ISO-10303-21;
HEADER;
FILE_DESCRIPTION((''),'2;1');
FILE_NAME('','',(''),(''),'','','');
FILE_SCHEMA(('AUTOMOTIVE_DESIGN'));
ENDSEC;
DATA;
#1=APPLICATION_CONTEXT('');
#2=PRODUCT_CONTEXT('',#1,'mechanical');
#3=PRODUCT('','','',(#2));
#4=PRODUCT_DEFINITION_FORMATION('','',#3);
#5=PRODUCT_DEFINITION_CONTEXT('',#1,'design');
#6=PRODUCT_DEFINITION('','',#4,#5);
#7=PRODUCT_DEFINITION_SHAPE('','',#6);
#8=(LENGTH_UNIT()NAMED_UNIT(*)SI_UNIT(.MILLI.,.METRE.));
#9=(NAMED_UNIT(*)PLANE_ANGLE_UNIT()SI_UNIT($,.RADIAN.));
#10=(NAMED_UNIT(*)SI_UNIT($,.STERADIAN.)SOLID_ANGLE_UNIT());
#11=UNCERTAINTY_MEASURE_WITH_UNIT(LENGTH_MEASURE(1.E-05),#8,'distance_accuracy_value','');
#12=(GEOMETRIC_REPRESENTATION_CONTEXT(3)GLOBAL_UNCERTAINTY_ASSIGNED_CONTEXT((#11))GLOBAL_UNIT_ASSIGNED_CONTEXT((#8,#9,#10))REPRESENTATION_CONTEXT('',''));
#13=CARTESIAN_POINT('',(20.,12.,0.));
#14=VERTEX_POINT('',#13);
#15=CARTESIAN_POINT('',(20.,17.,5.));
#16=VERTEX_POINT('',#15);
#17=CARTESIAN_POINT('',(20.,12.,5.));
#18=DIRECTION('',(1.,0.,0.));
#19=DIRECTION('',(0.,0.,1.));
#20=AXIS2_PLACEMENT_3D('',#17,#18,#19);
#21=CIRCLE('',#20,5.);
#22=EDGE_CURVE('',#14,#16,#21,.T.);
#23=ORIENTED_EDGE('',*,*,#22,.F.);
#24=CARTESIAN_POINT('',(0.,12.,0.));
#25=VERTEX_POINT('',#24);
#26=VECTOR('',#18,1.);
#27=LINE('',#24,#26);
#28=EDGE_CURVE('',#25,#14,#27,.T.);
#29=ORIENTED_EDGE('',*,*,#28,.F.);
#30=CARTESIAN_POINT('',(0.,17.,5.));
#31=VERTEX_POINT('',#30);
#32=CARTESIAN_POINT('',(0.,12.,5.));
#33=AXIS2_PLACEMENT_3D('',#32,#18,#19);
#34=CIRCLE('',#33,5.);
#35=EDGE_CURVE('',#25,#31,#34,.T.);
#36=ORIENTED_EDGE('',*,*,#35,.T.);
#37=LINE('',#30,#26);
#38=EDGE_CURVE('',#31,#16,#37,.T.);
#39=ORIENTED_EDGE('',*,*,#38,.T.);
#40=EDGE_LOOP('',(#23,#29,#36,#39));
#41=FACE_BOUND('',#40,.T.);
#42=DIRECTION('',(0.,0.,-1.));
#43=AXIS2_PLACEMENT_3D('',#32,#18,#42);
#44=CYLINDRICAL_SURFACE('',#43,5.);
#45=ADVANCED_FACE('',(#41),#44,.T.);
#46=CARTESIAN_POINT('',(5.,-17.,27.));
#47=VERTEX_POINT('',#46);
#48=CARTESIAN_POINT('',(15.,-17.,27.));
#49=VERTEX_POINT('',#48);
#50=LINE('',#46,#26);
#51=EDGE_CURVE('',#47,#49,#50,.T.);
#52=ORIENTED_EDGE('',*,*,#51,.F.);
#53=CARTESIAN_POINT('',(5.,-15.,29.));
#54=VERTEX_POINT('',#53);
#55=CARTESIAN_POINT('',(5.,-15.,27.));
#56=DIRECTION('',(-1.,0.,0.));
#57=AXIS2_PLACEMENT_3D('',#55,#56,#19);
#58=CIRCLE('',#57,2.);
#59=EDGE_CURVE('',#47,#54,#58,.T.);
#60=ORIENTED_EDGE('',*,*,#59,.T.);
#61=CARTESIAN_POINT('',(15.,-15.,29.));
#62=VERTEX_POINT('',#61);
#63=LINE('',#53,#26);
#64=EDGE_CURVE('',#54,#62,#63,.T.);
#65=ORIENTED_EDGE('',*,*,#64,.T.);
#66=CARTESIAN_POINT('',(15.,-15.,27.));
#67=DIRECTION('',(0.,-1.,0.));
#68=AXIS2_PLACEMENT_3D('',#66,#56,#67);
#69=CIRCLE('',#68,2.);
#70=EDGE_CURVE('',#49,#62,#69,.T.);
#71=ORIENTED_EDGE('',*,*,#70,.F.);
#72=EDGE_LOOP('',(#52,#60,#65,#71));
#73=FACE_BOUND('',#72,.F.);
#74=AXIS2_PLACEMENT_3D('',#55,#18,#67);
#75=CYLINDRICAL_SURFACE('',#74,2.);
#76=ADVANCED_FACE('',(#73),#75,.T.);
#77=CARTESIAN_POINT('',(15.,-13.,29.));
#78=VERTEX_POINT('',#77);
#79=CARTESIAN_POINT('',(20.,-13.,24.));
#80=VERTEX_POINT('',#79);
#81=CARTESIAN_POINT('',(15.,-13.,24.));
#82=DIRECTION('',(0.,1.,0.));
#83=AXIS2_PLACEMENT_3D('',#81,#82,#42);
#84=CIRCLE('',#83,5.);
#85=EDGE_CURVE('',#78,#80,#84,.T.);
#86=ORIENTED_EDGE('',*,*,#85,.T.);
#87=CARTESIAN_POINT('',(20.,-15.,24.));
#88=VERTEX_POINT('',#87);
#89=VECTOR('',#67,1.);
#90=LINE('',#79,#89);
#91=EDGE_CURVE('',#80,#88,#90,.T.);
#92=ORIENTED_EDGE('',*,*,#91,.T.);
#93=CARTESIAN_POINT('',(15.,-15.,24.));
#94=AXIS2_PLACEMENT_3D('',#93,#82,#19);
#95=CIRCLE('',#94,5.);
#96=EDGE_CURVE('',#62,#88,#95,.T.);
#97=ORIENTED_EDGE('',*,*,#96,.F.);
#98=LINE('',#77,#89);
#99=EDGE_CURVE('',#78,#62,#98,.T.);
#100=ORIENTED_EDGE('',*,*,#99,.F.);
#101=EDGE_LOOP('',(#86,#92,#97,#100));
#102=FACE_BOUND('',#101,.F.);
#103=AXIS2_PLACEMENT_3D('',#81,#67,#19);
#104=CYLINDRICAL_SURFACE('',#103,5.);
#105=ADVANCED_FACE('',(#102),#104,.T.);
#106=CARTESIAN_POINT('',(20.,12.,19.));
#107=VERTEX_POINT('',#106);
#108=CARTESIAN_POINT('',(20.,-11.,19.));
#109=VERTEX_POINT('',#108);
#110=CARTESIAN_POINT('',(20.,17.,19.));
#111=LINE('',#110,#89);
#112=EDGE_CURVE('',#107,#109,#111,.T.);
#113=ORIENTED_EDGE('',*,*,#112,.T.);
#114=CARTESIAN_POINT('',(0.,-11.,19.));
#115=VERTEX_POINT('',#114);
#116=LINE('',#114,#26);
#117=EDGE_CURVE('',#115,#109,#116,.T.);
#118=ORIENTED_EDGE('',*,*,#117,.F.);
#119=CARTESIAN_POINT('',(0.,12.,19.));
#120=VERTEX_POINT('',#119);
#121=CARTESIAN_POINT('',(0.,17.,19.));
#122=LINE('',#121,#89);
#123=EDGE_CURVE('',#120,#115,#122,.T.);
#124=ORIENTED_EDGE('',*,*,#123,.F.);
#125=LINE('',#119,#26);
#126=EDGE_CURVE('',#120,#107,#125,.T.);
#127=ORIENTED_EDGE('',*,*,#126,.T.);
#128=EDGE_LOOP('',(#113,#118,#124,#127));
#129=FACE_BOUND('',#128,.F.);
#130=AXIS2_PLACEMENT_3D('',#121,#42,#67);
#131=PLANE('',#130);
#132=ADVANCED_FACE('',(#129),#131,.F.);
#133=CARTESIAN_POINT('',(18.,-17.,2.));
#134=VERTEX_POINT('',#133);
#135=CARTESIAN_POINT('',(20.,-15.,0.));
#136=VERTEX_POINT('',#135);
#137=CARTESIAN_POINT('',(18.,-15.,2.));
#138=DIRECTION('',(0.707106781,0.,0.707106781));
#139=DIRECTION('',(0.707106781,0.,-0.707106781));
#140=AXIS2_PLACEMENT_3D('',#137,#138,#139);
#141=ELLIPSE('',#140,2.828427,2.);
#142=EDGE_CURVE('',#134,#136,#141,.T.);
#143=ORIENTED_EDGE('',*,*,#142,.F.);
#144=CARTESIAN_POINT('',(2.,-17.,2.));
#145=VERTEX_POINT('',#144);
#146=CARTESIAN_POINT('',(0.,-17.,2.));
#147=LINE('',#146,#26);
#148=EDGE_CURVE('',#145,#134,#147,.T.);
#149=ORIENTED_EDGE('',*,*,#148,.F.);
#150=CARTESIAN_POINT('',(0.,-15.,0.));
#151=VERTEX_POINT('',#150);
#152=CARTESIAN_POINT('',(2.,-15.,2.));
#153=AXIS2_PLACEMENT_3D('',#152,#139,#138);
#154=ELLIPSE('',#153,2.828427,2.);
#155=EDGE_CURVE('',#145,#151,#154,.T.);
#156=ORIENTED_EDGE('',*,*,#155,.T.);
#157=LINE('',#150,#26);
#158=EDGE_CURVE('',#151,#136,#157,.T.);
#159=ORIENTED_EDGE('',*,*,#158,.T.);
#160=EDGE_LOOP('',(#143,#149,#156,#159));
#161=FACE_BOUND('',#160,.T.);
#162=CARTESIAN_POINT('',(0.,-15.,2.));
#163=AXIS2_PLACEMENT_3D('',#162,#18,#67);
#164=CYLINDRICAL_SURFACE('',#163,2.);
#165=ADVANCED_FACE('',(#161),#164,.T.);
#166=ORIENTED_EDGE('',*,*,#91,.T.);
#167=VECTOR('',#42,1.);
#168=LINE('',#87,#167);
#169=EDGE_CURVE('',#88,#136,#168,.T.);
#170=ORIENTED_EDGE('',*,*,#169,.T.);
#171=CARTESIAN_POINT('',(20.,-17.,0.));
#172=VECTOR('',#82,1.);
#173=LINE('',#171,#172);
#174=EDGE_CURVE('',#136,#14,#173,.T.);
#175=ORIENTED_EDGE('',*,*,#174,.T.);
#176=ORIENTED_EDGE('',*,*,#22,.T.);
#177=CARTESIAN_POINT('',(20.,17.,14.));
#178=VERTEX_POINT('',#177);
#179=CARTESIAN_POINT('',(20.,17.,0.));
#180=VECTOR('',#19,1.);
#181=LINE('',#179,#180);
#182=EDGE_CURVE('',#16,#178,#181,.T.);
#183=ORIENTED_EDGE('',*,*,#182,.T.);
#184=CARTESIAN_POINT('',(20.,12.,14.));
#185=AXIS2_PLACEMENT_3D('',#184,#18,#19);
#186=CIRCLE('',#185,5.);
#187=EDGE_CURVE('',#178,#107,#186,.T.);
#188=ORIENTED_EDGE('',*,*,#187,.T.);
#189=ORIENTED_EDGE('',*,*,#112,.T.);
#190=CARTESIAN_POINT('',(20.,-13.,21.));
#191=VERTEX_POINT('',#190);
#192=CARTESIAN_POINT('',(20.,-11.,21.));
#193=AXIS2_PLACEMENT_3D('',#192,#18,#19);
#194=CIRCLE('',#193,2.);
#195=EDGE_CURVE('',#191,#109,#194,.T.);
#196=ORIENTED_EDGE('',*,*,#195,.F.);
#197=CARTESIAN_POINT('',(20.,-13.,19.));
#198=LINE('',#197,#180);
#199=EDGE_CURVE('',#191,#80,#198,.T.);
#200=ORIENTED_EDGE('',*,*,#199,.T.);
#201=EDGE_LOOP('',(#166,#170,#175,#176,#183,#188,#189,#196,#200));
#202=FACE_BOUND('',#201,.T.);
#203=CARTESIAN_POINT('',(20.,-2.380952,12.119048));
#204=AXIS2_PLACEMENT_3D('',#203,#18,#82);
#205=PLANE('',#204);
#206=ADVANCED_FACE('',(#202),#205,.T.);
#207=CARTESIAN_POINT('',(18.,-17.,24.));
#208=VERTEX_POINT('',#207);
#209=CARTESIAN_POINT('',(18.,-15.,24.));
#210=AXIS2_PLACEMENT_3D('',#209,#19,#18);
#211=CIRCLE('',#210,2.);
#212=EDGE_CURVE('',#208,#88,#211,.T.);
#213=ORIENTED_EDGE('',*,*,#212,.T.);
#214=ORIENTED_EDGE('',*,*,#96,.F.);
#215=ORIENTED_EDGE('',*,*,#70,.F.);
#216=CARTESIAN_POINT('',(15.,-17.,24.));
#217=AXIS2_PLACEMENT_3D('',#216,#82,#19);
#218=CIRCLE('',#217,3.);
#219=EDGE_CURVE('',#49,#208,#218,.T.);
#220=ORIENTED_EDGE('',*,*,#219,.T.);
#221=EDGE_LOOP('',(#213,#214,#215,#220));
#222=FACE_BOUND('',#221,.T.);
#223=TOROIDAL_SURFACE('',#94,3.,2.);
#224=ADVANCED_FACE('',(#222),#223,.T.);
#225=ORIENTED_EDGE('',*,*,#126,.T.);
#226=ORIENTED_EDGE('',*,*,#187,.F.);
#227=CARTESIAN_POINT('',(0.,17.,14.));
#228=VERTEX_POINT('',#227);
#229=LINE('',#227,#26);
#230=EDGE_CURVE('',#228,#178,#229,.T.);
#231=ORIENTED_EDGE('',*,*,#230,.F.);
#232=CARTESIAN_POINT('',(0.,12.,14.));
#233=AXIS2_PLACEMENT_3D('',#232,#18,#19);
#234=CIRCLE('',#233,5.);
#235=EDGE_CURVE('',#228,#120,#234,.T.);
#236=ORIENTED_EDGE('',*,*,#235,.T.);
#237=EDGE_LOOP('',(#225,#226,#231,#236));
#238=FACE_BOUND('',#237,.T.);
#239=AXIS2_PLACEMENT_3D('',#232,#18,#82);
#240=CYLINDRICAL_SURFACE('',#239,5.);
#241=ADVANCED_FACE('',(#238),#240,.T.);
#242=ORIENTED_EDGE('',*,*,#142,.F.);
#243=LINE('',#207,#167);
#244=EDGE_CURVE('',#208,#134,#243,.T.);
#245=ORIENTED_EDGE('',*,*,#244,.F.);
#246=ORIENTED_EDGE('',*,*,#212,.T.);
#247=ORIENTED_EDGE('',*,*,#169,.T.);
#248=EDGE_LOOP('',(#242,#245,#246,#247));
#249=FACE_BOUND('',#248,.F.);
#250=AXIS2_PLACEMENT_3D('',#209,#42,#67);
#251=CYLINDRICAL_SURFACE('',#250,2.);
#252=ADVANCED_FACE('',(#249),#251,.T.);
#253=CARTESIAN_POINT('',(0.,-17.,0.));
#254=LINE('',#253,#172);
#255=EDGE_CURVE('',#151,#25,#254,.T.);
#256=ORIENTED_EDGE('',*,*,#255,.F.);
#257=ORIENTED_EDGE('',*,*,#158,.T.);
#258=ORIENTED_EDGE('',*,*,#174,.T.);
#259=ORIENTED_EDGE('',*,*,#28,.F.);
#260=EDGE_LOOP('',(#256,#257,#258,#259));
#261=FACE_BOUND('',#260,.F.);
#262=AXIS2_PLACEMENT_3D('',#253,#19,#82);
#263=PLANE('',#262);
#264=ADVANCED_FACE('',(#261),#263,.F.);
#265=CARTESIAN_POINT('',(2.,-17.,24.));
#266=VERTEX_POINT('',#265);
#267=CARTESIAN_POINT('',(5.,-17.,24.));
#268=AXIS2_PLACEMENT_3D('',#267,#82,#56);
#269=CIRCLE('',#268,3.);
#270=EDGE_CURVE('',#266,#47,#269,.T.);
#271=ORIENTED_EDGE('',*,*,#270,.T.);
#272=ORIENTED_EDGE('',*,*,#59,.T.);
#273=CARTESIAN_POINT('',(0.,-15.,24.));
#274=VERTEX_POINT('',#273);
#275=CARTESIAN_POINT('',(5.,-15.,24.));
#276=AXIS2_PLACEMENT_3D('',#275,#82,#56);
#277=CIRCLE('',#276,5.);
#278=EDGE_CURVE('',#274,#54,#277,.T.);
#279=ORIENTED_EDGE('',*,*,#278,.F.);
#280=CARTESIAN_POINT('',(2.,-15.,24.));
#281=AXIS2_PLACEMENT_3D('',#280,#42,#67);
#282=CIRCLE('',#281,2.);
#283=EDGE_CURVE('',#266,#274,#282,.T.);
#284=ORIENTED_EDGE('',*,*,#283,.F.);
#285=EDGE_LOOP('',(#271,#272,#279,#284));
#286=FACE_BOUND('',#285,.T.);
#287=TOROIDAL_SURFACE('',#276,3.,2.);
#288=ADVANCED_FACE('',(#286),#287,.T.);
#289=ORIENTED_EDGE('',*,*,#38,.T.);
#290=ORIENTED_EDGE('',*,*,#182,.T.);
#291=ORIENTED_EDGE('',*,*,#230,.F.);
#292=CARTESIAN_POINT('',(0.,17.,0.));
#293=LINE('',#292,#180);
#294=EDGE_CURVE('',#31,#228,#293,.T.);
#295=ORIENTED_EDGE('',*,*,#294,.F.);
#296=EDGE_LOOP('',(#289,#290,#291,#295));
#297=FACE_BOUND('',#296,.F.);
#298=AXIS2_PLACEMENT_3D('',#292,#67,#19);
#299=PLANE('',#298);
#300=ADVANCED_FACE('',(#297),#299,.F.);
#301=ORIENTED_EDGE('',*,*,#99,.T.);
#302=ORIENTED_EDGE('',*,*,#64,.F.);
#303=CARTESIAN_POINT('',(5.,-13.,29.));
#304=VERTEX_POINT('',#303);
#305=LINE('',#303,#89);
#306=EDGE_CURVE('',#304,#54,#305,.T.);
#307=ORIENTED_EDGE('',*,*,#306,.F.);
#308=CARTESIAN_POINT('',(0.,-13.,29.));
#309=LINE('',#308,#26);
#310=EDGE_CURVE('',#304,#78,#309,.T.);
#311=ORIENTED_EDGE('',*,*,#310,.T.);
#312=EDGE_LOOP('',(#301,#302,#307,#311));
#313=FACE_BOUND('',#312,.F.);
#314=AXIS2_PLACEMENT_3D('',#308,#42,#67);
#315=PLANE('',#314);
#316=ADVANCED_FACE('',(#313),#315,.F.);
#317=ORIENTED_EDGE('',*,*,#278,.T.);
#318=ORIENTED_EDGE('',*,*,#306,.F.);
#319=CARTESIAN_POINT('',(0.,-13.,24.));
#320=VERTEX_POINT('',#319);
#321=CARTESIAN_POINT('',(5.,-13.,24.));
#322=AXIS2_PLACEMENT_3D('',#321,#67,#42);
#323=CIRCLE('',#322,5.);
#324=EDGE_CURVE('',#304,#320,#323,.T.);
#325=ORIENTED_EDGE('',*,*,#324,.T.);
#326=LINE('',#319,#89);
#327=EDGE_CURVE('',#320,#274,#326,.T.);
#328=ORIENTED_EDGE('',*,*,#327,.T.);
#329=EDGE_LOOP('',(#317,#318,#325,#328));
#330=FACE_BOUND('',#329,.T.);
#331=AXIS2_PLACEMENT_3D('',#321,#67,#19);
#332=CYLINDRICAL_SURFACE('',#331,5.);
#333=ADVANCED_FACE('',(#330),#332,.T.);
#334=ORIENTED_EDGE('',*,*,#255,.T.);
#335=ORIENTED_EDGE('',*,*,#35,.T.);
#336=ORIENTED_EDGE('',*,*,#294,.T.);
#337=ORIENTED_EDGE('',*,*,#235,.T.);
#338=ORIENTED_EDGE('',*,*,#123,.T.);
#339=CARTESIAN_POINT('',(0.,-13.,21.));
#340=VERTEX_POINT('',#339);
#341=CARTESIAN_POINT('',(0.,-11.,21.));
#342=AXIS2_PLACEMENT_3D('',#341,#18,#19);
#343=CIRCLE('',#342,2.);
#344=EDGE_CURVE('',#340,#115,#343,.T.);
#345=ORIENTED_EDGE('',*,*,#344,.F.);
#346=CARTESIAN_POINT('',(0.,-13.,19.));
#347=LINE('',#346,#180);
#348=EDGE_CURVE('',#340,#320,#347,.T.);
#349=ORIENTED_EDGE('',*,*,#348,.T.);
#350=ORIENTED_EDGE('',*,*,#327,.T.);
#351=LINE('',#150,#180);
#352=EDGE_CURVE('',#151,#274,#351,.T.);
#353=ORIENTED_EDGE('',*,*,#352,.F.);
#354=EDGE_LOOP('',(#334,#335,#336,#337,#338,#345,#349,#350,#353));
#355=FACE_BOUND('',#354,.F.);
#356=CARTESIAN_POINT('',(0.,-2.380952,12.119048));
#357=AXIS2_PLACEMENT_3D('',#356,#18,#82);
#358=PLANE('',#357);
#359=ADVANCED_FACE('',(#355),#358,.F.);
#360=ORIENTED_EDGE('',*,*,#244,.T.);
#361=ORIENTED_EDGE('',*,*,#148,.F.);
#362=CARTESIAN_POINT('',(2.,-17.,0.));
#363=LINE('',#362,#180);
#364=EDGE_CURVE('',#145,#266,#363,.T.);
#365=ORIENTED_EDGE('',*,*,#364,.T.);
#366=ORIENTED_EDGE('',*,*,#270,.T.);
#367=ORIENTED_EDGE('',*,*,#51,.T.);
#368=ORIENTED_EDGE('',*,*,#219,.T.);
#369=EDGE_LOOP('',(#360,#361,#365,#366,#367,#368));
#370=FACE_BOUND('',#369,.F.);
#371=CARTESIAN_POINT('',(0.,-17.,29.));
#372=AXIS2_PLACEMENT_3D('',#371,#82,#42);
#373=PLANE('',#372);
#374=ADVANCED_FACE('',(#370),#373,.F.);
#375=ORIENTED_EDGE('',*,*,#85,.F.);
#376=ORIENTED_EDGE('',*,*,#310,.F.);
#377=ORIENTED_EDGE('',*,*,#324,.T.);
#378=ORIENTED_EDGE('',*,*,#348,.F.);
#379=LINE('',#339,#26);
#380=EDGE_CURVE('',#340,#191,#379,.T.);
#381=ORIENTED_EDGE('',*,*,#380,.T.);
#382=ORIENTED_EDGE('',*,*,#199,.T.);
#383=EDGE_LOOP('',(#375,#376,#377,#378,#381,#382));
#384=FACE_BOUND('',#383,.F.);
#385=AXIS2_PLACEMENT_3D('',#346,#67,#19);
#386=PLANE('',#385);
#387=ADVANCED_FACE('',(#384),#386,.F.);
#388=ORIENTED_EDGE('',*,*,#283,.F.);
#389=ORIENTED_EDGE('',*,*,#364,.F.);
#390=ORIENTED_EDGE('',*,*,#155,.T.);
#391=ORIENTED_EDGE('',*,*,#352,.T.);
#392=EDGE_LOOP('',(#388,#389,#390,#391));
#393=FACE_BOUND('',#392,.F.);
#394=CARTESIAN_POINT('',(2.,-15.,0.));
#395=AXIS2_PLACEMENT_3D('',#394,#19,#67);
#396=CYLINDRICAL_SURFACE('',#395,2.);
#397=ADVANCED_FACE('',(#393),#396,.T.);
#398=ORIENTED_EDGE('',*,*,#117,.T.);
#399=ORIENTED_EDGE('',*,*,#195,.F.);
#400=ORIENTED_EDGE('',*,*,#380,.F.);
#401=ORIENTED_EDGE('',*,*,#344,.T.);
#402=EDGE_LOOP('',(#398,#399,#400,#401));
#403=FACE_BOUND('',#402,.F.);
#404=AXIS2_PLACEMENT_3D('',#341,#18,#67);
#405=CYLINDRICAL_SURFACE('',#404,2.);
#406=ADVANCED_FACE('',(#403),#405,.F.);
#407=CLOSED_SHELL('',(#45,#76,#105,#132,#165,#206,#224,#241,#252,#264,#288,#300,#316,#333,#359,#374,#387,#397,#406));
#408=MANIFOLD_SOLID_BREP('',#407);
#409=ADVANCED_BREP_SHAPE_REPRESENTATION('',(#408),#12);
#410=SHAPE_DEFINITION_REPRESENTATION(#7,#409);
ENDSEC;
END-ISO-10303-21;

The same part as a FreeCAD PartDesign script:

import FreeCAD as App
import Part
import Sketcher

V = App.Vector
Q = App.Units.Quantity


def edges_at(feature, points):
    """Names of the edges that pass closest to the given points."""
    edges = feature.Shape.Edges
    near = lambda p: min(range(len(edges)), key=lambda i: edges[i].distToShape(Part.Vertex(*p))[0])
    return sorted({f"Edge{near(p) + 1}" for p in points})

doc = App.newDocument("Part")
body = doc.addObject("PartDesign::Body", "Body")

# Sketch on YZ plane
sketch1 = doc.addObject("Sketcher::SketchObject", "Sketch")
body.addObject(sketch1)
sketch1.AttachmentSupport = (doc.YZ_Plane, [""])
sketch1.MapMode = "FlatFace"
sketch1.addGeometry(Part.LineSegment(V(-17, 29, 0), V(-17, 0, 0)), False)
sketch1.addGeometry(Part.LineSegment(V(-17, 0, 0), V(17, 0, 0)), False)
sketch1.addGeometry(Part.LineSegment(V(17, 0, 0), V(17, 19, 0)), False)
sketch1.addGeometry(Part.LineSegment(V(17, 19, 0), V(-13, 19, 0)), False)
sketch1.addGeometry(Part.LineSegment(V(-13, 19, 0), V(-13, 29, 0)), False)
sketch1.addGeometry(Part.LineSegment(V(-13, 29, 0), V(-17, 29, 0)), False)
sketch1.addConstraint(Sketcher.Constraint("Coincident", 0, 2, 1, 1))
sketch1.addConstraint(Sketcher.Constraint("Coincident", 1, 2, 2, 1))
sketch1.addConstraint(Sketcher.Constraint("Coincident", 2, 2, 3, 1))
sketch1.addConstraint(Sketcher.Constraint("Coincident", 3, 2, 4, 1))
sketch1.addConstraint(Sketcher.Constraint("Coincident", 4, 2, 5, 1))
sketch1.addConstraint(Sketcher.Constraint("Coincident", 5, 2, 0, 1))
sketch1.addConstraint(Sketcher.Constraint("Vertical", 0))
sketch1.addConstraint(Sketcher.Constraint("Horizontal", 1))
sketch1.addConstraint(Sketcher.Constraint("Vertical", 2))
sketch1.addConstraint(Sketcher.Constraint("Horizontal", 3))
sketch1.addConstraint(Sketcher.Constraint("Vertical", 4))
sketch1.addConstraint(Sketcher.Constraint("Horizontal", 5))
sketch1.addConstraint(Sketcher.Constraint("Symmetric", 0, 2, 1, 2, -1, 1))
sketch1.addConstraint(Sketcher.Constraint("DistanceX", 1, 1, 1, 2, Q("34 mm")))
sketch1.addConstraint(Sketcher.Constraint("DistanceX", 3, 2, 3, 1, Q("30 mm")))
sketch1.addConstraint(Sketcher.Constraint("DistanceY", 0, 2, 0, 1, Q("29 mm")))
sketch1.addConstraint(Sketcher.Constraint("DistanceY", 2, 1, 2, 2, Q("19 mm")))
pad1 = doc.addObject("PartDesign::Pad", "Pad")
body.addObject(pad1)
pad1.Profile = sketch1
pad1.Length = 20
doc.recompute()

fillet = doc.addObject("PartDesign::Fillet", "Fillet")
body.addObject(fillet)
fillet.Base = (pad1, edges_at(pad1, [
    (20, -15, 29),
    (0, -15, 29),
    (10, 17, 19),
    (10, 17, 0),
]))
fillet.Radius = 5
doc.recompute()

fillet2 = doc.addObject("PartDesign::Fillet", "Fillet001")
body.addObject(fillet2)
fillet2.Base = (fillet, edges_at(fillet, [(10, -17, 0), (10, -17, 29), (10, -13, 19)]))
fillet2.Radius = 2

doc.recompute()
